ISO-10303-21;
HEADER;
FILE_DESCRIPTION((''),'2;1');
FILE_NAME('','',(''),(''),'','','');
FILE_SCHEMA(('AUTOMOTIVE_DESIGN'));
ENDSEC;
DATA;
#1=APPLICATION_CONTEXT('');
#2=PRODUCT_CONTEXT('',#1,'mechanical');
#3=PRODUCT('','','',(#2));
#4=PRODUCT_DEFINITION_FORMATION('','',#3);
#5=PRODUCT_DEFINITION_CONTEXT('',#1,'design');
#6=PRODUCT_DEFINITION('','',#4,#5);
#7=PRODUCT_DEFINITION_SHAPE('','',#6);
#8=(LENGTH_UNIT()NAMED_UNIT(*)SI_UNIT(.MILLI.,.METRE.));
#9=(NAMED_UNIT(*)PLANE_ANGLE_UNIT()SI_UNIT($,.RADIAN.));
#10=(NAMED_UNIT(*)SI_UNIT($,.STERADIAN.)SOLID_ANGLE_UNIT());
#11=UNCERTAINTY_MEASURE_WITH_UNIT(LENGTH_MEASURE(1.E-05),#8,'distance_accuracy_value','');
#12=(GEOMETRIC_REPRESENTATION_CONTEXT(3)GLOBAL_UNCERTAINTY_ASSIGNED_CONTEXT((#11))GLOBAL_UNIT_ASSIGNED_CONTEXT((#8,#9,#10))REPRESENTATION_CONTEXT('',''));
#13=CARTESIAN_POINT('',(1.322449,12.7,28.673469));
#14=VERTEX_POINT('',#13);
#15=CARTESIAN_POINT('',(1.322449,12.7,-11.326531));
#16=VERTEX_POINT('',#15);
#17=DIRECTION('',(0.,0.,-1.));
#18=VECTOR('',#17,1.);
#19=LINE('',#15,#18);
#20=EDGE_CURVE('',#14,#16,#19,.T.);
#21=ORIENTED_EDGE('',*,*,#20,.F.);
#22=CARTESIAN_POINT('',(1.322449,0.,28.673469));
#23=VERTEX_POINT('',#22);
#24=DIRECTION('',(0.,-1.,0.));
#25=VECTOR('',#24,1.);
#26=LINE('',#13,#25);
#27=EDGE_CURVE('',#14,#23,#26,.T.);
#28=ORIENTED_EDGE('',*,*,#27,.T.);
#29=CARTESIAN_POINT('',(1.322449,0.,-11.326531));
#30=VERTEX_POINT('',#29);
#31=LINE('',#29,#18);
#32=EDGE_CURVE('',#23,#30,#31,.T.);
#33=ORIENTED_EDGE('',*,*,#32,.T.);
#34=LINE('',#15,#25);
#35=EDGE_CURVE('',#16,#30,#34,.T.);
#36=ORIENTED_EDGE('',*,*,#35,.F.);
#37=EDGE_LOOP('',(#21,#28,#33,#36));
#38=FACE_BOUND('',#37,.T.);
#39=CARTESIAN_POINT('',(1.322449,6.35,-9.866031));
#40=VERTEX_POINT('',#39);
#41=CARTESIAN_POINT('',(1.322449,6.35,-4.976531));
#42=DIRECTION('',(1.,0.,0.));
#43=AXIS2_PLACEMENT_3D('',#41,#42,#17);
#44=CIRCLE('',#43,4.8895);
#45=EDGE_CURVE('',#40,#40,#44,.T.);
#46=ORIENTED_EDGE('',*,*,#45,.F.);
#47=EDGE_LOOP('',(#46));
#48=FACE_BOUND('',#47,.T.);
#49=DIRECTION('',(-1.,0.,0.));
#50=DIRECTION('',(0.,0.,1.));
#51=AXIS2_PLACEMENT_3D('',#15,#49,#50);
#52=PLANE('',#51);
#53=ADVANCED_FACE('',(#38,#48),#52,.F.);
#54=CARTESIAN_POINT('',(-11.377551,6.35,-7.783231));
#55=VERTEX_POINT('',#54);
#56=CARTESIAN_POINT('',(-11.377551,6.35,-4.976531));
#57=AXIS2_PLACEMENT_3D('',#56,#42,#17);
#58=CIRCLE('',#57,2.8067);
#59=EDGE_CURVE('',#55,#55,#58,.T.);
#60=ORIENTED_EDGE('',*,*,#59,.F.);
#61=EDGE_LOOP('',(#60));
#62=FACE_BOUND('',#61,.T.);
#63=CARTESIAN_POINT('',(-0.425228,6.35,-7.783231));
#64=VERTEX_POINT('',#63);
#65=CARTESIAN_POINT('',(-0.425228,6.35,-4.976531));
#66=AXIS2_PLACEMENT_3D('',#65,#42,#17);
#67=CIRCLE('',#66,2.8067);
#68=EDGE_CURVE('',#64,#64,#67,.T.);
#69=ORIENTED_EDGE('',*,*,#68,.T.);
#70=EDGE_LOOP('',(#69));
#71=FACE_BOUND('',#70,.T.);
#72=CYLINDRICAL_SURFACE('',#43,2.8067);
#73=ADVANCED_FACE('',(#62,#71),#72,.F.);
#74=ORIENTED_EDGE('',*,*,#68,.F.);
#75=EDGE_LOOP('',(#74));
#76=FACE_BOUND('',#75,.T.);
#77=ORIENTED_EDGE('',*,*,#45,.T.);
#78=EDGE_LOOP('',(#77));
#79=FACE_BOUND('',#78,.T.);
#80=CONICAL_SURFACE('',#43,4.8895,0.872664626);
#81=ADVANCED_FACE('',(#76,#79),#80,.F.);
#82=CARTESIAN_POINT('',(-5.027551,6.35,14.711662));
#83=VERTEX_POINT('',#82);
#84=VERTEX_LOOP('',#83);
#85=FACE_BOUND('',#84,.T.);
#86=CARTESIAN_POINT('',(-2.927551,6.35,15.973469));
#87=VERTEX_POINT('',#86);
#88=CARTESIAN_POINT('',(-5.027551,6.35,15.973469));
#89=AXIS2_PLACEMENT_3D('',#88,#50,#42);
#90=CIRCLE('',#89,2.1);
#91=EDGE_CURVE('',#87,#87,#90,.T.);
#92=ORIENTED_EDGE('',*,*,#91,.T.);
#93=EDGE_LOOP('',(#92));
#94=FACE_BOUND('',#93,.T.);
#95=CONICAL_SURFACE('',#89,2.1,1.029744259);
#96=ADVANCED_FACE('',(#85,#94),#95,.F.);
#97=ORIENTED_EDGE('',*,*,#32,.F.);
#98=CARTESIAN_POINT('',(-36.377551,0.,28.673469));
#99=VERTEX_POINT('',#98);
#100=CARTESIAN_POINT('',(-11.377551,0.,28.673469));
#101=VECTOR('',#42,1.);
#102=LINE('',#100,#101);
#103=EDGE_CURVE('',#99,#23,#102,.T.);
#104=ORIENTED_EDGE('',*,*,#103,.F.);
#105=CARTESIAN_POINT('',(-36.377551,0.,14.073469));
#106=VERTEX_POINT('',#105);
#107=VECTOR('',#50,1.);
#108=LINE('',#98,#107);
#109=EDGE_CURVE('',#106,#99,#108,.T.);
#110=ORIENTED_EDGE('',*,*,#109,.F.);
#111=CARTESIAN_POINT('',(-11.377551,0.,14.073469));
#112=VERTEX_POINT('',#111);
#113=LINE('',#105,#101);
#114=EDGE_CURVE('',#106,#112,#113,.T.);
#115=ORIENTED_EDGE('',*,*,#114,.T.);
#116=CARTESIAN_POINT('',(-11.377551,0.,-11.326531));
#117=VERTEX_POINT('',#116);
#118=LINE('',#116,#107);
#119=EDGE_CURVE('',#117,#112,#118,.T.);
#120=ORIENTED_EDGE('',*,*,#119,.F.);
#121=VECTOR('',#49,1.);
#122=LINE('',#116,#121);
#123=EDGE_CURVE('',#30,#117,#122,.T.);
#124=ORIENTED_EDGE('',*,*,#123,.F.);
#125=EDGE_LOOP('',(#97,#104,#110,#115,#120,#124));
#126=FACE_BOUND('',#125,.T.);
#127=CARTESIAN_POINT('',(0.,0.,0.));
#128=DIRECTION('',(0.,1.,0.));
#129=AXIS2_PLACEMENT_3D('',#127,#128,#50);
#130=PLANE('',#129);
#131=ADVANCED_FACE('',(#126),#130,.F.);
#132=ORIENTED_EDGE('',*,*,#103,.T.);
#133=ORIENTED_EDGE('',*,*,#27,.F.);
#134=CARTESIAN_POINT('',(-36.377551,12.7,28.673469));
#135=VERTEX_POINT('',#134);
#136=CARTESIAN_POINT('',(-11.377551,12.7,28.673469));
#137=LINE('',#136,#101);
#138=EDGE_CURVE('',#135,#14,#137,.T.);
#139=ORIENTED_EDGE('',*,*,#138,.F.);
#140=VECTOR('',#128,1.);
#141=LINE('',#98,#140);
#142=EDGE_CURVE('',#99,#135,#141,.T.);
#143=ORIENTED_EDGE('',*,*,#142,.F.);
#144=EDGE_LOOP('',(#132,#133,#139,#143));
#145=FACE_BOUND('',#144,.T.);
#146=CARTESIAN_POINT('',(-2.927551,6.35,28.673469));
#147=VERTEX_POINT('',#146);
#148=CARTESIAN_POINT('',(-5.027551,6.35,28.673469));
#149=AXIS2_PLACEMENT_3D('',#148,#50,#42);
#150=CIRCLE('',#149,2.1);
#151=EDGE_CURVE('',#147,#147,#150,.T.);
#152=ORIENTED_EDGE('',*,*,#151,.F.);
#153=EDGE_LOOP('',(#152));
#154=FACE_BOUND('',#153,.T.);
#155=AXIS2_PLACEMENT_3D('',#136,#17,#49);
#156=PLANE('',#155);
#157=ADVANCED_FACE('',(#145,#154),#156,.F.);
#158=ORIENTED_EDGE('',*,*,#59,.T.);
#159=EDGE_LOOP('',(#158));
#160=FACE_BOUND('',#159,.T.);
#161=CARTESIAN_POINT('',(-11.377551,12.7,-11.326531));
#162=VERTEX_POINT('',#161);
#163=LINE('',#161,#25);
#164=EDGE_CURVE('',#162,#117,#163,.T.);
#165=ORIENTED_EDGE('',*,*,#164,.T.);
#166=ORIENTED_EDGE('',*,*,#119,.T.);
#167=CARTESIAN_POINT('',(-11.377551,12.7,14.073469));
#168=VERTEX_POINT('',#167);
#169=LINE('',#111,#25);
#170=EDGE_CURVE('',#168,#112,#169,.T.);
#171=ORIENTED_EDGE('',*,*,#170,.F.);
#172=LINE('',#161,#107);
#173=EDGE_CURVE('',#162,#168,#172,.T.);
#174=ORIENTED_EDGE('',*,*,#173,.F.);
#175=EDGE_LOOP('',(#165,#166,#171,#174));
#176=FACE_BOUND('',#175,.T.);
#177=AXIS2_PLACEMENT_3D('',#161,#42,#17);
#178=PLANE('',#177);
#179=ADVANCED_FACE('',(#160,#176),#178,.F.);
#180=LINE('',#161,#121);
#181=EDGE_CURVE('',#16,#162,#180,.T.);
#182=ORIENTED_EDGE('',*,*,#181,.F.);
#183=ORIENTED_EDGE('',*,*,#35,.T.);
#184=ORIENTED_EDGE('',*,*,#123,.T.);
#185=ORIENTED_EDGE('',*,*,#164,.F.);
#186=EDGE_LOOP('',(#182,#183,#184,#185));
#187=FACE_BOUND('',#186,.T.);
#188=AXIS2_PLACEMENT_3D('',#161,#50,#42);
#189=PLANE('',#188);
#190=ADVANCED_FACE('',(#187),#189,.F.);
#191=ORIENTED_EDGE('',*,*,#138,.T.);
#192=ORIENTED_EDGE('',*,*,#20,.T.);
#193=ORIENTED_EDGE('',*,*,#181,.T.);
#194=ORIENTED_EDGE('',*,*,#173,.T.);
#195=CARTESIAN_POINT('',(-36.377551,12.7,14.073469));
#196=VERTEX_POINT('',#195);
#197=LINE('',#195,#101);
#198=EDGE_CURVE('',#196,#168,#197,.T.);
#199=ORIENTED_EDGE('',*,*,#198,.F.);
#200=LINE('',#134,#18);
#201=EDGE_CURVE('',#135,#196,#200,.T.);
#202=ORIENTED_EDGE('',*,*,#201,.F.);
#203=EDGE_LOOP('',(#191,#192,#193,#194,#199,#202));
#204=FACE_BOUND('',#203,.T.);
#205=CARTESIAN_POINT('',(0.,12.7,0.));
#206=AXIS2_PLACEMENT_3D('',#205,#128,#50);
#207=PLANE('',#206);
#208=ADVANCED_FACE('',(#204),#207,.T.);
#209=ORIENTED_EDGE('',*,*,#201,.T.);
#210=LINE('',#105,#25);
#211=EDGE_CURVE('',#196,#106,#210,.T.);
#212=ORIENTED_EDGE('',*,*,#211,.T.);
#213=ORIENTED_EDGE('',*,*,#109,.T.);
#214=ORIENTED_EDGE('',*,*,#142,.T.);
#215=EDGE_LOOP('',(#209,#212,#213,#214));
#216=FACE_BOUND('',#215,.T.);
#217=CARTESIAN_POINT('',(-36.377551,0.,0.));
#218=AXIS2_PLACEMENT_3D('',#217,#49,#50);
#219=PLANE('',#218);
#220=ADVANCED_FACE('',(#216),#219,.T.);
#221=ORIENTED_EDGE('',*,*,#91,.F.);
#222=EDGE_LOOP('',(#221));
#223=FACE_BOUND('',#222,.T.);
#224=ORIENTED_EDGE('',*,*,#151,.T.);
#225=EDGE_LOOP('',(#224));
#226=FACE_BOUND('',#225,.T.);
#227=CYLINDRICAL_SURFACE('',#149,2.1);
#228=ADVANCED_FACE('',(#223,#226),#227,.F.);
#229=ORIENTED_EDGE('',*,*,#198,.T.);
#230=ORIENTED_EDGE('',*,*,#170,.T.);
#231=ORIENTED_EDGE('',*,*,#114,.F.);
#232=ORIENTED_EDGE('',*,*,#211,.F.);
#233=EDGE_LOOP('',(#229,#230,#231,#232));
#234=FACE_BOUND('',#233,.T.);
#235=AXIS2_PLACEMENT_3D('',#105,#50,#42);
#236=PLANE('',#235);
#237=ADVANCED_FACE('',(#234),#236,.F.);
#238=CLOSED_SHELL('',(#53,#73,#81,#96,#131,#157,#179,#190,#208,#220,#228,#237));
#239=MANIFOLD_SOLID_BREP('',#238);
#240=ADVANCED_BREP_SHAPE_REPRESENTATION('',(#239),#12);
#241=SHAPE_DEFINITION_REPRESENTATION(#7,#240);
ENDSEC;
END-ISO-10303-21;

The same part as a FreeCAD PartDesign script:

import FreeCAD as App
import Part
import Sketcher
from FreeCAD import Vector

doc = App.newDocument("Part")
params = doc.addObject("Spreadsheet::Sheet", "Params")
for row, (alias, value) in enumerate([
    ("sketch1_height", "40 mm"),
    ("sketch1_width", "12.7 mm"),
    ("pad1_length", "12.7 mm"),
    ("hole_diameter", "5.6134 mm"),
    ("hole_depth", "12.7 mm"),
    ("hole_csink_diameter", "9.779 mm"),
    ("sketch3_diameter", "4.2 mm"),
    ("hole2_diameter", "4.2 mm"),
    ("hole2_depth", "12.7 mm"),
    ("sketch4_width", "12.7 mm"),
    ("sketch4_height", "14.6 mm"),
    ("pad2_length", "25 mm"),
], start=1):
    params.set(f"A{row}", alias)
    params.set(f"B{row}", "=" + value)
    params.setAlias(f"B{row}", alias)

body = doc.addObject("PartDesign::Body", "Body")

# Sketch on XZ plane
sketch1 = body.newObject("Sketcher::SketchObject", "Sketch")
sketch1.AttachmentSupport = (doc.getObject("XZ_Plane"), [""])
sketch1.MapMode = "FlatFace"
sketch1.addGeometry([
    Part.LineSegment(Vector(-11.377551, -11.326531, 0), Vector(-11.377551, 28.673469, 0)),
    Part.LineSegment(Vector(-11.377551, 28.673469, 0), Vector(1.322449, 28.673469, 0)),
    Part.LineSegment(Vector(1.322449, 28.673469, 0), Vector(1.322449, -11.326531, 0)),
    Part.LineSegment(Vector(1.322449, -11.326531, 0), Vector(-11.377551, -11.326531, 0)),
], False)
sketch1.addConstraint([
    Sketcher.Constraint("Coincident", 0, 2, 1, 1),
    Sketcher.Constraint("Coincident", 1, 2, 2, 1),
    Sketcher.Constraint("Coincident", 2, 2, 3, 1),
    Sketcher.Constraint("Coincident", 3, 2, 0, 1),
    Sketcher.Constraint("Vertical", 0),
    Sketcher.Constraint("Horizontal", 1),
    Sketcher.Constraint("Vertical", 2),
    Sketcher.Constraint("Horizontal", 3),
    Sketcher.Constraint("DistanceY", 0, 1, 0, 2, 40.0),
    Sketcher.Constraint("DistanceX", 1, 1, 1, 2, 12.7),
    Sketcher.Constraint("DistanceX", 0, 2, -1, 1, 11.377551),
    Sketcher.Constraint("DistanceY", -1, 1, 0, 2, 28.673469),
])
sketch1.setExpression("Constraints[8]", "Params.sketch1_height")
sketch1.setExpression("Constraints[9]", "Params.sketch1_width")
pad1 = body.newObject("PartDesign::Pad", "Pad")
pad1.Profile = sketch1
pad1.setExpression("Length", "Params.pad1_length")
pad1.Reversed = True

# Sketch on YZ plane
sketch2 = body.newObject("Sketcher::SketchObject", "Sketch001")
sketch2.AttachmentSupport = (doc.getObject("YZ_Plane"), [""])
sketch2.MapMode = "FlatFace"
sketch2.AttachmentOffset = App.Placement(Vector(0, 0, 1.322449), App.Rotation())
sketch2.addGeometry(Part.Circle(Vector(6.35, -4.976531, 0), Vector(0, 0, 1), 2.8067), False)
sketch2.addConstraint([
    Sketcher.Constraint("Diameter", 0, 5.6134),
    Sketcher.Constraint("DistanceX", -1, 1, 0, 3, 6.35),
    Sketcher.Constraint("DistanceY", 0, 3, -1, 1, 4.976531),
])
doc.recompute()
hole = body.newObject("PartDesign::Hole", "Hole")
hole.Profile = sketch2
hole.ThreadType = "None"
hole.setExpression("Diameter", "Params.hole_diameter")
hole.DepthType = "Dimension"
hole.setExpression("Depth", "Params.hole_depth")
hole.DrillPoint = "Angled"
hole.DrillPointAngle = 118
hole.HoleCutType = "Countersink"
hole.setExpression("HoleCutDiameter", "Params.hole_csink_diameter")
hole.HoleCutCountersinkAngle = 100

# Sketch on XY plane
sketch3 = body.newObject("Sketcher::SketchObject", "Sketch002")
sketch3.AttachmentSupport = (doc.getObject("XY_Plane"), [""])
sketch3.MapMode = "FlatFace"
sketch3.AttachmentOffset = App.Placement(Vector(0, 0, 28.673469), App.Rotation())
sketch3.addGeometry(Part.Circle(Vector(-5.027551, 6.35, 0), Vector(0, 0, 1), 2.1), False)
sketch3.addConstraint([
    Sketcher.Constraint("Diameter", 0, 4.2),
    Sketcher.Constraint("DistanceY", -1, 1, 0, 3, 6.35),
    Sketcher.Constraint("DistanceX", 0, 3, -1, 1, 5.027551),
])
sketch3.setExpression("Constraints[0]", "Params.sketch3_diameter")
doc.recompute()
hole2 = body.newObject("PartDesign::Hole", "Hole001")
hole2.Profile = sketch3
hole2.ThreadType = "None"
hole2.setExpression("Diameter", "Params.hole2_diameter")
hole2.DepthType = "Dimension"
hole2.setExpression("Depth", "Params.hole2_depth")
hole2.DrillPoint = "Angled"
hole2.DrillPointAngle = 118

# Sketch on YZ plane
sketch4 = body.newObject("Sketcher::SketchObject", "Sketch003")
sketch4.AttachmentSupport = (doc.getObject("YZ_Plane"), [""])
sketch4.MapMode = "FlatFace"
sketch4.AttachmentOffset = App.Placement(Vector(0, 0, -11.377551), App.Rotation())
sketch4.addGeometry([
    Part.LineSegment(Vector(12.7, 14.073469, 0), Vector(0, 14.073469, 0)),
    Part.LineSegment(Vector(0, 14.073469, 0), Vector(0, 28.673469, 0)),
    Part.LineSegment(Vector(0, 28.673469, 0), Vector(12.7, 28.673469, 0)),
    Part.LineSegment(Vector(12.7, 28.673469, 0), Vector(12.7, 14.073469, 0)),
], False)
sketch4.addConstraint([
    Sketcher.Constraint("Coincident", 0, 2, 1, 1),
    Sketcher.Constraint("Coincident", 1, 2, 2, 1),
    Sketcher.Constraint("Coincident", 2, 2, 3, 1),
    Sketcher.Constraint("Coincident", 3, 2, 0, 1),
    Sketcher.Constraint("Horizontal", 0),
    Sketcher.Constraint("Vertical", 1),
    Sketcher.Constraint("Horizontal", 2),
    Sketcher.Constraint("Vertical", 3),
    Sketcher.Constraint("PointOnObject", 0, 2, -2),
    Sketcher.Constraint("DistanceX", 0, 2, 0, 1, 12.7),
    Sketcher.Constraint("DistanceY", 1, 1, 1, 2, 14.6),
    Sketcher.Constraint("DistanceY", -1, 1, 0, 2, 14.073469),
])
sketch4.setExpression("Constraints[9]", "Params.sketch4_width")
sketch4.setExpression("Constraints[10]", "Params.sketch4_height")
pad2 = body.newObject("PartDesign::Pad", "Pad001")
pad2.Profile = sketch4
pad2.setExpression("Length", "Params.pad2_length")
pad2.Reversed = True

doc.recompute()
